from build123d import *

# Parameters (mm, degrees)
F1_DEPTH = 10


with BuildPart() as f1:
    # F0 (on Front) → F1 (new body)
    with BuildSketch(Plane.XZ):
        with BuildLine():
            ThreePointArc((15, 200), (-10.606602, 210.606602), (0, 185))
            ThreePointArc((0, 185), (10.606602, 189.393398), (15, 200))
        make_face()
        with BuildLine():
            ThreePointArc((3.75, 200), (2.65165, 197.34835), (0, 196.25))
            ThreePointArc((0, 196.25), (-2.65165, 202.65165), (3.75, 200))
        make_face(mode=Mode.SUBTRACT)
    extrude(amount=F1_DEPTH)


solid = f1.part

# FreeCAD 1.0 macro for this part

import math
import FreeCAD as App
import Part
import Sketcher

V = App.Vector

doc = App.newDocument("Part")
body = doc.addObject("PartDesign::Body", "Body")

# Sketch on XZ plane
sketch1 = doc.addObject("Sketcher::SketchObject", "Sketch")
body.addObject(sketch1)
sketch1.AttachmentSupport = (doc.XZ_Plane, [""])
sketch1.MapMode = "FlatFace"
sketch1.addGeometry([
    Part.ArcOfCircle(Part.Circle(V(0, 200, 0), V(0, 0, 1), 15), math.radians(-0.000001), math.radians(270.000001)),
    Part.ArcOfCircle(Part.Circle(V(0.000001, 199.999999, 0), V(0, 0, 1), 14.999999), math.radians(-90.000004), math.radians(0.000004)),
    Part.ArcOfCircle(Part.Circle(V(0, 200, 0), V(0, 0, 1), 3.75), math.radians(0.000004), math.radians(269.999996)),
    Part.ArcOfCircle(Part.Circle(V(-0.000001, 200.000001, 0), V(0, 0, 1), 3.750001), math.radians(-89.999978), math.radians(-0.000022)),
], False)
sketch1.addConstraint([
    Sketcher.Constraint("Tangent", 0, 1, 1, 2),
    Sketcher.Constraint("Coincident", 1, 1, 0, 2),
    Sketcher.Constraint("Tangent", 2, 1, 3, 2),
    Sketcher.Constraint("Coincident", 3, 1, 2, 2),
    Sketcher.Constraint("Coincident", 2, 3, 0, 3),
    Sketcher.Constraint("PointOnObject", 0, 3, -2),
    Sketcher.Constraint("PointOnObject", 1, 1, -2),
    Sketcher.Constraint("PointOnObject", 3, 1, -2),
    Sketcher.Constraint("Horizontal", 3, 3, 0, 1),
    Sketcher.Constraint("Horizontal", 0, 1, 2, 1),
    Sketcher.Constraint("Radius", 0, 15.0),
    Sketcher.Constraint("Radius", 2, 3.75),
    Sketcher.Constraint("DistanceY", -1, 1, 0, 3, 200.0),
])
pad1 = doc.addObject("PartDesign::Pad", "Pad")
body.addObject(pad1)
pad1.Profile = sketch1
pad1.Length = 10

doc.recompute()
